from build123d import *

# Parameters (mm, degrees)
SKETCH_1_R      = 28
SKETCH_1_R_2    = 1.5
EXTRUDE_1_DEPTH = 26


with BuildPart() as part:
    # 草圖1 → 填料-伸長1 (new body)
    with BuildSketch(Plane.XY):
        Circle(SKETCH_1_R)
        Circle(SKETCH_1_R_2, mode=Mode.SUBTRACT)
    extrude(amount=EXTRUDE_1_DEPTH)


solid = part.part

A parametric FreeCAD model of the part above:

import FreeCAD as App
import Part
import Sketcher
from FreeCAD import Vector
Q = App.Units.Quantity

doc = App.newDocument("Part")
body = doc.addObject("PartDesign::Body", "Body")

sketch1 = doc.addObject("Sketcher::SketchObject", "Sketch")
body.addObject(sketch1)
sketch1.AttachmentSupport = (doc.XY_Plane, [""])
sketch1.MapMode = "FlatFace"
sketch1.addGeometry(Part.Circle(Vector(0, 0, 0), Vector(0, 0, 1), 28), False)
sketch1.addGeometry(Part.Circle(Vector(0, 0, 0), Vector(0, 0, 1), 1.5), False)
sketch1.addConstraint(Sketcher.Constraint("Coincident", 0, 3, -1, 1))
sketch1.addConstraint(Sketcher.Constraint("Coincident", 1, 3, -1, 1))
sketch1.addConstraint(Sketcher.Constraint("Diameter", 0, Q("56 mm")))
sketch1.addConstraint(Sketcher.Constraint("Diameter", 1, Q("3 mm")))
pad1 = doc.addObject("PartDesign::Pad", "Pad")
body.addObject(pad1)
pad1.Profile = sketch1
pad1.Length = 26

doc.recompute()
